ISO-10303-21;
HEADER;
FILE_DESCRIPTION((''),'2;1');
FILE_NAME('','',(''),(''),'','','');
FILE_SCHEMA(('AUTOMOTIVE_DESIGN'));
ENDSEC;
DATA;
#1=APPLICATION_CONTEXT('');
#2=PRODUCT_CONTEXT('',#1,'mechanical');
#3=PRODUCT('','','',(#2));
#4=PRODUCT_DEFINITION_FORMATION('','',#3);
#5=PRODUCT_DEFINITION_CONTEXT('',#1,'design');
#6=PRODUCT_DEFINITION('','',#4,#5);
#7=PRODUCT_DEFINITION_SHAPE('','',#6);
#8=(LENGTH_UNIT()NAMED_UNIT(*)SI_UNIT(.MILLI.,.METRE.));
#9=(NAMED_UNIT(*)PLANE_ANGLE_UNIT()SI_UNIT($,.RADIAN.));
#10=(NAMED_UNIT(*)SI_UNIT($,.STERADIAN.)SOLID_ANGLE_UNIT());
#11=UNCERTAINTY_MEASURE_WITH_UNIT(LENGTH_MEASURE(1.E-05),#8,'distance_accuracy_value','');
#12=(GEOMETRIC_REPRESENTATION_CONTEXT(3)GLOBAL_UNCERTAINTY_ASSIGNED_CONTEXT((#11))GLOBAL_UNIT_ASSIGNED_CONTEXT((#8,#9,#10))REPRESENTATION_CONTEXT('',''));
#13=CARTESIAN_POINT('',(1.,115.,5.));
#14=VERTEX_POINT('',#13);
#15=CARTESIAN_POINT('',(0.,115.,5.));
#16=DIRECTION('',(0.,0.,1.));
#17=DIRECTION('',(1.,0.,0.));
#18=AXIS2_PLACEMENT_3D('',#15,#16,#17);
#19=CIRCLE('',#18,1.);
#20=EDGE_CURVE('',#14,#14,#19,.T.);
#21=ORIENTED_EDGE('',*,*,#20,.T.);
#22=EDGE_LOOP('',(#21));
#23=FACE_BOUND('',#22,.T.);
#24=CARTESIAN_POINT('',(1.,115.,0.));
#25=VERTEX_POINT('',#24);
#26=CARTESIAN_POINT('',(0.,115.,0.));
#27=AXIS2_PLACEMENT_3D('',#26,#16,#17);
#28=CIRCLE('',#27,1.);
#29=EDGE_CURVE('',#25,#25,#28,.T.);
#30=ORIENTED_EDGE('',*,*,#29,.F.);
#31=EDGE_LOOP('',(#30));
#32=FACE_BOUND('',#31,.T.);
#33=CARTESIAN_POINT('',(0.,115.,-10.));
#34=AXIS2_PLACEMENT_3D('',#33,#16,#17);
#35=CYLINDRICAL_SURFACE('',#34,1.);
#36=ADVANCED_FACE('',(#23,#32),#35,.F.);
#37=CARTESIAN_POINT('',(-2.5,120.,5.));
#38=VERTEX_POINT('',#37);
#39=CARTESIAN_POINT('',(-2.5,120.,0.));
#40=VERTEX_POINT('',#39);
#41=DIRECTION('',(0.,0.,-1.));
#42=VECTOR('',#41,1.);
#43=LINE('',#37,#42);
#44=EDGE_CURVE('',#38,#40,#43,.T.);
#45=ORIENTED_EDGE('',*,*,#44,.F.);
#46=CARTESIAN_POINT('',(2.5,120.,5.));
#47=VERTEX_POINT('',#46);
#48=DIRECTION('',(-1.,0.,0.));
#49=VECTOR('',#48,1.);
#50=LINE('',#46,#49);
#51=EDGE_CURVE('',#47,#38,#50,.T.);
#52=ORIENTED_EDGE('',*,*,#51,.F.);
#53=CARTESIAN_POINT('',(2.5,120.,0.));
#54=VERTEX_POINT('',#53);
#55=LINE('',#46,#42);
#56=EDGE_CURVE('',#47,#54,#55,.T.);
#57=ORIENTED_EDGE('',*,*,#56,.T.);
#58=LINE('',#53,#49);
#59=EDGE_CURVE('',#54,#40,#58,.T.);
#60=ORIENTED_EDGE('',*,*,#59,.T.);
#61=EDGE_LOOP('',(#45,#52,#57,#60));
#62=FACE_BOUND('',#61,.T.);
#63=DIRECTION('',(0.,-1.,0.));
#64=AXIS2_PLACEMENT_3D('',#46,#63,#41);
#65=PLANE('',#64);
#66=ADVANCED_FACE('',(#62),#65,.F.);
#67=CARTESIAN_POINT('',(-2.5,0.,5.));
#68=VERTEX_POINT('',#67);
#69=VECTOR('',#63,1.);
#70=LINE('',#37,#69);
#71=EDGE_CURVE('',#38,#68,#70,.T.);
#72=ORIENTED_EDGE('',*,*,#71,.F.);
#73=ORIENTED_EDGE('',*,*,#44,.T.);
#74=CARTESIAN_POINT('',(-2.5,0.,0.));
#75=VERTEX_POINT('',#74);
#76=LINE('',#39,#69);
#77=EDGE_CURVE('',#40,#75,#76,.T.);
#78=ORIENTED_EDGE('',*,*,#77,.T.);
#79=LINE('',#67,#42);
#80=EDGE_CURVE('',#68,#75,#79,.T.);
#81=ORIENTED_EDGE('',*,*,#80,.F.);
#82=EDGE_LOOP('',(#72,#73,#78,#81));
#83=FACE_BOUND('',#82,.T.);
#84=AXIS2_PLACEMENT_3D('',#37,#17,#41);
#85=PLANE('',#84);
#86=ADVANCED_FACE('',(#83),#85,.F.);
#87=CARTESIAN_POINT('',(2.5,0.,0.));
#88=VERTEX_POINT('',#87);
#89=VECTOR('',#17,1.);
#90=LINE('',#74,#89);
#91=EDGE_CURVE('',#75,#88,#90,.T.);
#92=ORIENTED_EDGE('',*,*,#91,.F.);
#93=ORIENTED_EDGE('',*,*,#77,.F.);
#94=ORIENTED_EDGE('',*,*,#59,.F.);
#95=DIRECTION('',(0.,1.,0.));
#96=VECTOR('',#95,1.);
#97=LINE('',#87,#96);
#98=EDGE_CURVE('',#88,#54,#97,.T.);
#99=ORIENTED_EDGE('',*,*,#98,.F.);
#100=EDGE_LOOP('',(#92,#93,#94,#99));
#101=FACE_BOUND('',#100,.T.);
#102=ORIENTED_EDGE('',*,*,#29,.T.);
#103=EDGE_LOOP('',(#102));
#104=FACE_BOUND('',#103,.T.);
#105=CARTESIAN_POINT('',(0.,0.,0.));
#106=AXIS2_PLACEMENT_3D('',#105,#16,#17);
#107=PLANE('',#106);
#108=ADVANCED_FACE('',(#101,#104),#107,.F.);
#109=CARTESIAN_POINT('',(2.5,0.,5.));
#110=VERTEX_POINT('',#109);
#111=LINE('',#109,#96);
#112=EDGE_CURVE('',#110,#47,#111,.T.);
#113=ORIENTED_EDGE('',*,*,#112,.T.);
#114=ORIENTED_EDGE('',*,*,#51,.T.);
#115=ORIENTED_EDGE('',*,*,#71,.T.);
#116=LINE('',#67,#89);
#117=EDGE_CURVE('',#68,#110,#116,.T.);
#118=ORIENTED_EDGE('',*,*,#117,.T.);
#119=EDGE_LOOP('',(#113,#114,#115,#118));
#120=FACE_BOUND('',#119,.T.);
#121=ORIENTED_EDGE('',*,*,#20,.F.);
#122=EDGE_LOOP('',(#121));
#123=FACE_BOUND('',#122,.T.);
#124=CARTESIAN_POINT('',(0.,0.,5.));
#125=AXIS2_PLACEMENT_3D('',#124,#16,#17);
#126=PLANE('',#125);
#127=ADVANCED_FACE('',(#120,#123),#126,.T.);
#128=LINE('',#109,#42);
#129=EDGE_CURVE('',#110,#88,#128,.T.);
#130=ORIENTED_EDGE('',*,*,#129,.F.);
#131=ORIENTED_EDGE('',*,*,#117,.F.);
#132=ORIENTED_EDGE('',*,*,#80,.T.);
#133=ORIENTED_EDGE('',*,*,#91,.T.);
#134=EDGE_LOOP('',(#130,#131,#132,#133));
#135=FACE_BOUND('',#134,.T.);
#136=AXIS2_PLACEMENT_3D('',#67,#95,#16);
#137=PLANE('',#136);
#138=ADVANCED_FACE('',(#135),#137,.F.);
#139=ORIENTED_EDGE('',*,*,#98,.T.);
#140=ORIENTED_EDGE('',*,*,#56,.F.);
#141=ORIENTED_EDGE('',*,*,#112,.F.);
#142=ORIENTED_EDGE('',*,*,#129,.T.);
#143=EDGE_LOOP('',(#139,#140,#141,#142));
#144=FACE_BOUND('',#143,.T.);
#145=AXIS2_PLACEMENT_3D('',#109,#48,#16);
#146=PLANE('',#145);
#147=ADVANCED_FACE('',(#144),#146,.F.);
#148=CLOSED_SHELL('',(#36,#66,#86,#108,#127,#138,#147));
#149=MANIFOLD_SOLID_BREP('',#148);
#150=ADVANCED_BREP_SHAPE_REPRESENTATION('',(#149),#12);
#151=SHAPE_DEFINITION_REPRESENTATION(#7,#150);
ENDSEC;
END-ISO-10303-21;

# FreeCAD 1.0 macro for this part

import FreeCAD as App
import Part
import Sketcher
from FreeCAD import Vector
Q = App.Units.Quantity


def add_polygon(sketch, points):
    """Adds a closed chain of lines whose ends are joined by coincident constraints."""
    first, n = sketch.GeometryCount, len(points)
    for a, b in zip(points, points[1:] + points[:1]):
        sketch.addGeometry(Part.LineSegment(App.Vector(*a, 0), App.Vector(*b, 0)), False)
    for i in range(n):
        sketch.addConstraint(Sketcher.Constraint("Coincident", first + i, 2, first + (i + 1) % n, 1))

doc = App.newDocument("Part")
body = doc.addObject("PartDesign::Body", "Body")

sketch1 = body.newObject("Sketcher::SketchObject", "Sketch")
sketch1.AttachmentSupport = (doc.getObject("XY_Plane"), [""])
sketch1.MapMode = "FlatFace"
add_polygon(sketch1, [(-2, 120), (-2, 0), (2, 0), (2, 120)])
sketch1.addConstraint([
    Sketcher.Constraint("Vertical", 0),
    Sketcher.Constraint("Horizontal", 1),
    Sketcher.Constraint("Vertical", 2),
    Sketcher.Constraint("Horizontal", 3),
    Sketcher.Constraint("Symmetric", 0, 2, 1, 2, -1, 1),
    Sketcher.Constraint("DistanceX", 1, 1, 1, 2, Q("5 mm")),
    Sketcher.Constraint("DistanceY", 0, 2, 0, 1, Q("120 mm")),
])
pad1 = body.newObject("PartDesign::Pad", "Pad")
pad1.Profile = sketch1
pad1.Length = 5

sketch2 = body.newObject("Sketcher::SketchObject", "Sketch001")
sketch2.AttachmentSupport = (doc.getObject("XY_Plane"), [""])
sketch2.MapMode = "FlatFace"
sketch2.addGeometry(Part.Circle(Vector(0, 115, 0), Vector(0, 0, 1), 1), False)
sketch2.addConstraint([
    Sketcher.Constraint("PointOnObject", 0, 3, -2),
    Sketcher.Constraint("Diameter", 0, Q("2 mm")),
    Sketcher.Constraint("DistanceY", -1, 1, 0, 3, Q("115 mm")),
])
pocket1 = body.newObject("PartDesign::Pocket", "Pocket")
pocket1.Profile = sketch2
pocket1.Length = 20
pocket1.Midplane = True

doc.recompute()
